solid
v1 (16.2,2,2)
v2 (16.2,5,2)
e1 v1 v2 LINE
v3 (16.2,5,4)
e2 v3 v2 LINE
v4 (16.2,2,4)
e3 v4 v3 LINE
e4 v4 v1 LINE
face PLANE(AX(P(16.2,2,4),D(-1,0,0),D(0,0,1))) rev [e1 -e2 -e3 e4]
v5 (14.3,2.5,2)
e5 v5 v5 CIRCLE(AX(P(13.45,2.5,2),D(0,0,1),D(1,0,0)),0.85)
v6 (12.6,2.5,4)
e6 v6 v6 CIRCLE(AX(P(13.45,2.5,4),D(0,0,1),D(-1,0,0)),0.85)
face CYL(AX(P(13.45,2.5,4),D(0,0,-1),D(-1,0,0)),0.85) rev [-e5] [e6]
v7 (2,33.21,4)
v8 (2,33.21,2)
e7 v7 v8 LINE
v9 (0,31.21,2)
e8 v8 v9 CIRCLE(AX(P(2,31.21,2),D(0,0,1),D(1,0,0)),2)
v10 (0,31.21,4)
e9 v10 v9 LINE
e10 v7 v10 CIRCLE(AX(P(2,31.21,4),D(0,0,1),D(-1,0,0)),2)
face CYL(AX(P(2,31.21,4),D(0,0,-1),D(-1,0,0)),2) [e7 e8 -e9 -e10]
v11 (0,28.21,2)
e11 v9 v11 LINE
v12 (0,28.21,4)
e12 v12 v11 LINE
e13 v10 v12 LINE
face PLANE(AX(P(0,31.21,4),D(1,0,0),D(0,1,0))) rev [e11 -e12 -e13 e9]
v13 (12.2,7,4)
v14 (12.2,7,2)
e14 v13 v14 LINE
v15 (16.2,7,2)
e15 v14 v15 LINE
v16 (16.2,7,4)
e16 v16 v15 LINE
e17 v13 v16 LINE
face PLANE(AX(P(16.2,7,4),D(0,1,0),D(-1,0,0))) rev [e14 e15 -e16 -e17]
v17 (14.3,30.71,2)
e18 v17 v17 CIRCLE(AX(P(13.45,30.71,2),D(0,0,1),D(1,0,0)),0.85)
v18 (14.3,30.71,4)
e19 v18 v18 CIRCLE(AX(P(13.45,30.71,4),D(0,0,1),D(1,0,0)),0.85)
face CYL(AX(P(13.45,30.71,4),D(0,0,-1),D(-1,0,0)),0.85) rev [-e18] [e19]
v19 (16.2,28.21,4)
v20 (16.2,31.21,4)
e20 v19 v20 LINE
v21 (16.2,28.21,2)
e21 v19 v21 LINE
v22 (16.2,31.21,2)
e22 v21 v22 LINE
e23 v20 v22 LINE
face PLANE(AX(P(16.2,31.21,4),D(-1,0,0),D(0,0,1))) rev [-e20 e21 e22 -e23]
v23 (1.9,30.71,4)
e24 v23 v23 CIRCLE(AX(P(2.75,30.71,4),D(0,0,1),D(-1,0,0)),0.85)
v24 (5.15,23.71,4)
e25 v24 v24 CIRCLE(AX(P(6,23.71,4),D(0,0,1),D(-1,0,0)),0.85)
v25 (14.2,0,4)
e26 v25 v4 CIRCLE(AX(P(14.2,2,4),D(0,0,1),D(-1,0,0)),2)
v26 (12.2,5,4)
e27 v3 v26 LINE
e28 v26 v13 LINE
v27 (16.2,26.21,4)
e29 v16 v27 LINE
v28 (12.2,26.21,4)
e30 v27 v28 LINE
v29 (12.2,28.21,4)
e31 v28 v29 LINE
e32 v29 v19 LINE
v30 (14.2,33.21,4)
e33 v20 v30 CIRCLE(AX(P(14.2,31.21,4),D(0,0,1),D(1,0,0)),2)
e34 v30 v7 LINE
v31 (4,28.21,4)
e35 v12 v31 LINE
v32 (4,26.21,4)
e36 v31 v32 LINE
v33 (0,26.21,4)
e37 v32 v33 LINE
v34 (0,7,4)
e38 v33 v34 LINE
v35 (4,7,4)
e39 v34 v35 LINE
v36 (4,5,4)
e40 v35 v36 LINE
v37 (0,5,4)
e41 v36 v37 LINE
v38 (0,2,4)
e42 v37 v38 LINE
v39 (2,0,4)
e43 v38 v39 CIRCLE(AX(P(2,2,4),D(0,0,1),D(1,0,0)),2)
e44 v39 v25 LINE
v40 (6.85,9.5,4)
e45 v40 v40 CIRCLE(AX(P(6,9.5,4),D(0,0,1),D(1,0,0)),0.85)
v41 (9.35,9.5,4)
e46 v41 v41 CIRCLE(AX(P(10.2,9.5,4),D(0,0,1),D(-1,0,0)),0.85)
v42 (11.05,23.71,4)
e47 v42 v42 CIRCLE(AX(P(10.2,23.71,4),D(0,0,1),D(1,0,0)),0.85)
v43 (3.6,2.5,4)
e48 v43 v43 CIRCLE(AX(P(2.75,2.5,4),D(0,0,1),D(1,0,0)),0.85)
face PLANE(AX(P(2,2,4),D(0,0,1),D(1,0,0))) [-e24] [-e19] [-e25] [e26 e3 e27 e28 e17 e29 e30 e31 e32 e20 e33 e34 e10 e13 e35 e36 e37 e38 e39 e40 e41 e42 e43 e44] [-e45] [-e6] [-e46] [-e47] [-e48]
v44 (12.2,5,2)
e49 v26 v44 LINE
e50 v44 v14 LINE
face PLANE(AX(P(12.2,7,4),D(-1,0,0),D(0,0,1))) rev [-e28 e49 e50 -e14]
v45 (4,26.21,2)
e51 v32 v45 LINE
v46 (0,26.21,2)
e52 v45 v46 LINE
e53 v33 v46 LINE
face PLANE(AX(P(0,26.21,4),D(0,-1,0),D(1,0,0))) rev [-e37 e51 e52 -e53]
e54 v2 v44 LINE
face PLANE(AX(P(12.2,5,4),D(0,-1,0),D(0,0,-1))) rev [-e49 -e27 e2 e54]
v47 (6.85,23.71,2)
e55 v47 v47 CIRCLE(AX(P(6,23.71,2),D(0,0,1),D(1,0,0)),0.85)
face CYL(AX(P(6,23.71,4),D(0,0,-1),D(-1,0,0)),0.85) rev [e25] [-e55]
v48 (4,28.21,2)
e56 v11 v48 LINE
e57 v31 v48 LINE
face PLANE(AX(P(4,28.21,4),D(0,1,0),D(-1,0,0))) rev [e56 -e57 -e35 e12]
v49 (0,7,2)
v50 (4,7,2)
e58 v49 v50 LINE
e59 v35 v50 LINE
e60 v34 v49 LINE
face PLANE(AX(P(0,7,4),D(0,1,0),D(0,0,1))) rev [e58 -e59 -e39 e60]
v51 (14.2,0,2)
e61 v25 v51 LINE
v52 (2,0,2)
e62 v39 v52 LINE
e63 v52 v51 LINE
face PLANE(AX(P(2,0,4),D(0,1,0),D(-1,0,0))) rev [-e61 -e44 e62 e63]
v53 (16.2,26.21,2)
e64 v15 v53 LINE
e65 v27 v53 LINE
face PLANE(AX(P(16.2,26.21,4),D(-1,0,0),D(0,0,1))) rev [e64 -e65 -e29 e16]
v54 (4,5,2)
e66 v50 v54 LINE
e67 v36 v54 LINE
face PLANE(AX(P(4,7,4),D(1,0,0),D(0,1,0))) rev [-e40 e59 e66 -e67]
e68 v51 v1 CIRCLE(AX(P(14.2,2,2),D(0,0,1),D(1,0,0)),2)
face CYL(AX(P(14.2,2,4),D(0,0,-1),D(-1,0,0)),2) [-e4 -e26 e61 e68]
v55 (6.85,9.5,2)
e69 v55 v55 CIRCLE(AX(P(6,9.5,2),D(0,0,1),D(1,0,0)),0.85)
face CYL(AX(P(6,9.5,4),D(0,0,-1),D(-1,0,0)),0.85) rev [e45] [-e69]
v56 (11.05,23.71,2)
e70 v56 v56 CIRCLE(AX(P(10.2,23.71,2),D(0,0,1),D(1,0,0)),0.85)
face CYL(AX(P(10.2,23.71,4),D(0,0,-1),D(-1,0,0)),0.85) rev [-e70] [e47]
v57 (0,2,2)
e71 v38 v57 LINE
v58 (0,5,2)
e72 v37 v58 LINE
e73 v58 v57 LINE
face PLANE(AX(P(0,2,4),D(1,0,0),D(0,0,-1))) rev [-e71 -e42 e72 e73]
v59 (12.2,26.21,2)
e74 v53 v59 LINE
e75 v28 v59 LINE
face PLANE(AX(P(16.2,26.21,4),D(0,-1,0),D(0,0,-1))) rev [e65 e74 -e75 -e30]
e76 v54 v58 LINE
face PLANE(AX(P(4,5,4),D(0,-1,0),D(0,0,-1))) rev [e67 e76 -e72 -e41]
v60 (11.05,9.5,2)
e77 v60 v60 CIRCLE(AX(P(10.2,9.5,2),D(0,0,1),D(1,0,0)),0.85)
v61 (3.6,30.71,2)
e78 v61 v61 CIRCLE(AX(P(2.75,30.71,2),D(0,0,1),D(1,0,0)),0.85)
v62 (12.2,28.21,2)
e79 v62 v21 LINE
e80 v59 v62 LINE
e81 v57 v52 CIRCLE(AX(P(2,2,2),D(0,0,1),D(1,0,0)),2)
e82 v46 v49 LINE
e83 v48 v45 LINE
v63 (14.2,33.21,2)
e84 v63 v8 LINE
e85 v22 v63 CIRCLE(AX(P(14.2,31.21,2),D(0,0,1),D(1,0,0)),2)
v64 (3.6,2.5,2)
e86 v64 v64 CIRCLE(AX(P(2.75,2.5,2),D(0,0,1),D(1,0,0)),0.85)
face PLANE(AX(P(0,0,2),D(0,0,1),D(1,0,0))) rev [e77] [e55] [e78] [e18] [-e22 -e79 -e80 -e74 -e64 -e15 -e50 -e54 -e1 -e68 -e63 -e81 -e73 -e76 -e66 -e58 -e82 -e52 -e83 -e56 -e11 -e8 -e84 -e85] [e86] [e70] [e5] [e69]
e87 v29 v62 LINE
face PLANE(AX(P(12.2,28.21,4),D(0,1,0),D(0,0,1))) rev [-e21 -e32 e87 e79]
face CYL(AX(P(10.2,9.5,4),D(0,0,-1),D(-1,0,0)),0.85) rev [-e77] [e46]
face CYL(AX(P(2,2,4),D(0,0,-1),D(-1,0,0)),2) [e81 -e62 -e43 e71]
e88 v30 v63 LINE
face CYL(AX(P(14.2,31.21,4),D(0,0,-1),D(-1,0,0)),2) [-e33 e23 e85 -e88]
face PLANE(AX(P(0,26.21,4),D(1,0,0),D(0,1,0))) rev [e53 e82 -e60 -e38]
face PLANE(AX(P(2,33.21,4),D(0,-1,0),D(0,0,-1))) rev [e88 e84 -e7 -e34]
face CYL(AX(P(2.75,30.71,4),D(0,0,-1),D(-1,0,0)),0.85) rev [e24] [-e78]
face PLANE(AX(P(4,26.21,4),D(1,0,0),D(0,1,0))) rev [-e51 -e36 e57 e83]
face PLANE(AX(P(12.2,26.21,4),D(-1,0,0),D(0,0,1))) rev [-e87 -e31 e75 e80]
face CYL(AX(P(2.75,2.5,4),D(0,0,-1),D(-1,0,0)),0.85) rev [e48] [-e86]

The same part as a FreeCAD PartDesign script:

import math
import FreeCAD as App
import Part
import Sketcher
Q = App.Units.Quantity

doc = App.newDocument("Part")
body = doc.addObject("PartDesign::Body", "Body")

sketch1 = body.newObject("Sketcher::SketchObject", "Sketch")
sketch1.AttachmentSupport = (doc.getObject("XY_Plane"), [""])
sketch1.MapMode = "FlatFace"
sketch1.addGeometry([
    Part.LineSegment(App.Vector(0, 26.2, 0), App.Vector(0, 7, 0)),
    Part.LineSegment(App.Vector(0, 7, 0), App.Vector(4, 7, 0)),
    Part.LineSegment(App.Vector(4, 7, 0), App.Vector(4, 5, 0)),
    Part.LineSegment(App.Vector(4, 5, 0), App.Vector(0, 5, 0)),
    Part.LineSegment(App.Vector(0, 5, 0), App.Vector(0, 2, 0)),
    Part.ArcOfCircle(Part.Circle(App.Vector(2, 2, 0), App.Vector(0, 0, 1), 2), math.radians(-180), math.radians(-90)),
    Part.LineSegment(App.Vector(2, 0, 0), App.Vector(14.2, 0, 0)),
    Part.ArcOfCircle(Part.Circle(App.Vector(14.2, 2, 0), App.Vector(0, 0, 1), 2), math.radians(-90), math.radians(0)),
    Part.LineSegment(App.Vector(16.2, 2, 0), App.Vector(16.2, 5, 0)),
    Part.LineSegment(App.Vector(16.2, 5, 0), App.Vector(12.2, 5, 0)),
    Part.LineSegment(App.Vector(12.2, 5, 0), App.Vector(12.2, 7, 0)),
    Part.LineSegment(App.Vector(12.2, 7, 0), App.Vector(16.2, 7, 0)),
    Part.LineSegment(App.Vector(16.2, 7, 0), App.Vector(16.2, 26.2, 0)),
    Part.LineSegment(App.Vector(16.2, 26.2, 0), App.Vector(12.2, 26.2, 0)),
    Part.LineSegment(App.Vector(12.2, 26.2, 0), App.Vector(12.2, 28.2, 0)),
    Part.LineSegment(App.Vector(12.2, 28.2, 0), App.Vector(16.2, 28.2, 0)),
    Part.LineSegment(App.Vector(16.2, 28.2, 0), App.Vector(16.2, 31.2, 0)),
    Part.ArcOfCircle(Part.Circle(App.Vector(14.2, 31.2, 0), App.Vector(0, 0, 1), 2), math.radians(0), math.radians(90)),
    Part.LineSegment(App.Vector(14.2, 33.2, 0), App.Vector(2, 33.2, 0)),
    Part.ArcOfCircle(Part.Circle(App.Vector(2, 31.2, 0), App.Vector(0, 0, 1), 2), math.radians(90), math.radians(180)),
    Part.LineSegment(App.Vector(0, 31.2, 0), App.Vector(0, 28.2, 0)),
    Part.LineSegment(App.Vector(0, 28.2, 0), App.Vector(4, 28.2, 0)),
    Part.LineSegment(App.Vector(4, 28.2, 0), App.Vector(4, 26.2, 0)),
    Part.LineSegment(App.Vector(4, 26.2, 0), App.Vector(0, 26.2, 0)),
    Part.Circle(App.Vector(2.8, 2.5, 0), App.Vector(0, 0, 1), 0.8),
    Part.Circle(App.Vector(6, 9.5, 0), App.Vector(0, 0, 1), 0.8),
    Part.Circle(App.Vector(13.4, 2.5, 0), App.Vector(0, 0, 1), 0.8),
    Part.Circle(App.Vector(10.2, 9.5, 0), App.Vector(0, 0, 1), 0.8),
    Part.Circle(App.Vector(6, 23.7, 0), App.Vector(0, 0, 1), 0.8),
    Part.Circle(App.Vector(2.8, 30.7, 0), App.Vector(0, 0, 1), 0.8),
    Part.Circle(App.Vector(10.2, 23.7, 0), App.Vector(0, 0, 1), 0.8),
    Part.Circle(App.Vector(13.4, 30.7, 0), App.Vector(0, 0, 1), 0.8),
], False)
sketch1.addConstraint([
    Sketcher.Constraint("Coincident", 0, 2, 1, 1),
    Sketcher.Constraint("Coincident", 1, 2, 2, 1),
    Sketcher.Constraint("Coincident", 2, 2, 3, 1),
    Sketcher.Constraint("Coincident", 3, 2, 4, 1),
    Sketcher.Constraint("Tangent", 4, 2, 5, 1),
    Sketcher.Constraint("Tangent", 5, 2, 6, 1),
    Sketcher.Constraint("Tangent", 6, 2, 7, 1),
    Sketcher.Constraint("Tangent", 7, 2, 8, 1),
    Sketcher.Constraint("Coincident", 8, 2, 9, 1),
    Sketcher.Constraint("Coincident", 9, 2, 10, 1),
    Sketcher.Constraint("Coincident", 10, 2, 11, 1),
    Sketcher.Constraint("Coincident", 11, 2, 12, 1),
    Sketcher.Constraint("Coincident", 12, 2, 13, 1),
    Sketcher.Constraint("Coincident", 13, 2, 14, 1),
    Sketcher.Constraint("Coincident", 14, 2, 15, 1),
    Sketcher.Constraint("Coincident", 15, 2, 16, 1),
    Sketcher.Constraint("Tangent", 16, 2, 17, 1),
    Sketcher.Constraint("Tangent", 17, 2, 18, 1),
    Sketcher.Constraint("Tangent", 18, 2, 19, 1),
    Sketcher.Constraint("Tangent", 19, 2, 20, 1),
    Sketcher.Constraint("Coincident", 20, 2, 21, 1),
    Sketcher.Constraint("Coincident", 21, 2, 22, 1),
    Sketcher.Constraint("Coincident", 22, 2, 23, 1),
    Sketcher.Constraint("Coincident", 23, 2, 0, 1),
    Sketcher.Constraint("Vertical", 0),
    Sketcher.Constraint("Horizontal", 1),
    Sketcher.Constraint("Vertical", 2),
    Sketcher.Constraint("Horizontal", 3),
    Sketcher.Constraint("Vertical", 4),
    Sketcher.Constraint("Horizontal", 6),
    Sketcher.Constraint("Vertical", 8),
    Sketcher.Constraint("Horizontal", 9),
    Sketcher.Constraint("Vertical", 10),
    Sketcher.Constraint("Horizontal", 11),
    Sketcher.Constraint("Vertical", 12),
    Sketcher.Constraint("Horizontal", 13),
    Sketcher.Constraint("Vertical", 14),
    Sketcher.Constraint("Horizontal", 15),
    Sketcher.Constraint("Vertical", 16),
    Sketcher.Constraint("Horizontal", 18),
    Sketcher.Constraint("Vertical", 20),
    Sketcher.Constraint("Horizontal", 21),
    Sketcher.Constraint("Vertical", 22),
    Sketcher.Constraint("Horizontal", 23),
    Sketcher.Constraint("Equal", 5, 7),
    Sketcher.Constraint("Equal", 7, 17),
    Sketcher.Constraint("Equal", 17, 19),
    Sketcher.Constraint("Equal", 24, 25),
    Sketcher.Constraint("Equal", 25, 26),
    Sketcher.Constraint("Equal", 26, 27),
    Sketcher.Constraint("Equal", 27, 28),
    Sketcher.Constraint("Equal", 28, 29),
    Sketcher.Constraint("Equal", 29, 30),
    Sketcher.Constraint("Equal", 30, 31),
    Sketcher.Constraint("PointOnObject", 0, 2, -2),
    Sketcher.Constraint("PointOnObject", 3, 2, -2),
    Sketcher.Constraint("PointOnObject", 5, 2, -1),
    Sketcher.Constraint("PointOnObject", 19, 2, -2),
    Sketcher.Constraint("Horizontal", 24, 3, 26, 3),
    Sketcher.Constraint("Horizontal", 25, 3, 27, 3),
    Sketcher.Constraint("Horizontal", 28, 3, 30, 3),
    Sketcher.Constraint("Horizontal", 29, 3, 31, 3),
    Sketcher.Constraint("Horizontal", 3, 2, 8, 2),
    Sketcher.Constraint("Horizontal", 1, 2, 10, 2),
    Sketcher.Constraint("Horizontal", 15, 2, 20, 2),
    Sketcher.Constraint("Horizontal", 13, 2, 22, 2),
    Sketcher.Constraint("Vertical", 7, 3, 17, 3),
    Sketcher.Constraint("Vertical", 25, 3, 28, 3),
    Sketcher.Constraint("Vertical", 24, 3, 29, 3),
    Sketcher.Constraint("Vertical", 27, 3, 30, 3),
    Sketcher.Constraint("Vertical", 26, 3, 31, 3),
    Sketcher.Constraint("Vertical", 8, 2, 11, 2),
    Sketcher.Constraint("Vertical", 10, 2, 13, 2),
    Sketcher.Constraint("Vertical", 2, 2, 21, 2),
    Sketcher.Constraint("Equal", 3, 9),
    Sketcher.Constraint("Equal", 10, 14),
    Sketcher.Constraint("Equal", 8, 16),
    Sketcher.Constraint("Radius", 5, Q("2 mm")),
    Sketcher.Constraint("Diameter", 24, Q("1.7 mm")),
    Sketcher.Constraint("DistanceX", 1, 1, 1, 2, Q("4 mm")),
    Sketcher.Constraint("DistanceY", 2, 2, 2, 1, Q("2 mm")),
    Sketcher.Constraint("DistanceY", 4, 2, 4, 1, Q("3 mm")),
    Sketcher.Constraint("DistanceX", 6, 1, 6, 2, Q("12.2 mm")),
    Sketcher.Constraint("DistanceX", -1, 1, 25, 3, Q("6 mm")),
    Sketcher.Constraint("DistanceY", 24, 3, 25, 3, Q("7 mm")),
    Sketcher.Constraint("DistanceX", 27, 3, 7, 3, Q("4 mm")),
    Sketcher.Constraint("DistanceY", 28, 3, 29, 3, Q("7 mm")),
    Sketcher.Constraint("DistanceY", 0, 2, 0, 1, Q("19.21 mm")),
    Sketcher.Constraint("DistanceY", -1, 1, 24, 3, Q("2.5 mm")),
    Sketcher.Constraint("DistanceX", 24, 3, 26, 3, Q("10.7 mm")),
    Sketcher.Constraint("DistanceY", 28, 3, 19, 3, Q("7.5 mm")),
    Sketcher.Constraint("DistanceX", -1, 1, 24, 3, Q("2.75 mm")),
])
pad1 = body.newObject("PartDesign::Pad", "Pad")
pad1.Profile = sketch1
pad1.Length = 4

sketch2 = body.newObject("Sketcher::SketchObject", "Sketch001")
sketch2.AttachmentSupport = (doc.getObject("XY_Plane"), [""])
sketch2.MapMode = "FlatFace"
sketch2.addGeometry([
    Part.LineSegment(App.Vector(0, 33, 0), App.Vector(0, 0, 0)),
    Part.LineSegment(App.Vector(0, 0, 0), App.Vector(16, 0, 0)),
    Part.LineSegment(App.Vector(16, 0, 0), App.Vector(16, 33, 0)),
    Part.LineSegment(App.Vector(16, 33, 0), App.Vector(0, 33, 0)),
], False)
sketch2.addConstraint([
    Sketcher.Constraint("Coincident", 0, 2, 1, 1),
    Sketcher.Constraint("Coincident", 1, 2, 2, 1),
    Sketcher.Constraint("Coincident", 2, 2, 3, 1),
    Sketcher.Constraint("Coincident", 3, 2, 0, 1),
    Sketcher.Constraint("Vertical", 0),
    Sketcher.Constraint("Horizontal", 1),
    Sketcher.Constraint("Vertical", 2),
    Sketcher.Constraint("Horizontal", 3),
    Sketcher.Constraint("Coincident", 0, 2, -1, 1),
    Sketcher.Constraint("DistanceX", 1, 1, 1, 2, Q("16.2 mm")),
    Sketcher.Constraint("DistanceY", 0, 2, 0, 1, Q("33.21 mm")),
])
pocket1 = body.newObject("PartDesign::Pocket", "Pocket")
pocket1.Profile = sketch2
pocket1.Length = 2
pocket1.Reversed = True

doc.recompute()
